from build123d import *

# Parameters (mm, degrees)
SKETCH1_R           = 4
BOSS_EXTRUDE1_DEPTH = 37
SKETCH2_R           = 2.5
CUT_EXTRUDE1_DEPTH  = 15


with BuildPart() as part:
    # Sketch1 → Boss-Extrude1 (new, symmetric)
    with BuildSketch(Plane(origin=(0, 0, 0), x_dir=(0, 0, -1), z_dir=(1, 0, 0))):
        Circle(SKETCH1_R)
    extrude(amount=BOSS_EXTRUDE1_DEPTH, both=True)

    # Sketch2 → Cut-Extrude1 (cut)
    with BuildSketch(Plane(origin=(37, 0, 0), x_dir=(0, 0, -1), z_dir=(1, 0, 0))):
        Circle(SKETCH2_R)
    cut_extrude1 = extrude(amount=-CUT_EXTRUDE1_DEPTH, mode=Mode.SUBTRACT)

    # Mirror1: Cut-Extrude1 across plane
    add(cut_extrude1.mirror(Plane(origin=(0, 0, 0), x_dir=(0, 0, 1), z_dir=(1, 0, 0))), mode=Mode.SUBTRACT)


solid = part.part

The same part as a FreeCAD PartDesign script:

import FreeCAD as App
import Part
import Sketcher
from FreeCAD import Vector

doc = App.newDocument("Part")
params = doc.addObject("Spreadsheet::Sheet", "Params")
for row, (alias, value) in enumerate([
    ("sketch1_diameter", "8 mm"),
    ("pad1_length", "74 mm"),
    ("sketch2_diameter", "5 mm"),
    ("pocket1_length", "15 mm"),
], start=1):
    params.set(f"A{row}", alias)
    params.set(f"B{row}", "=" + value)
    params.setAlias(f"B{row}", alias)

body = doc.addObject("PartDesign::Body", "Body")

# Sketch on YZ plane
sketch1 = body.newObject("Sketcher::SketchObject", "Sketch")
sketch1.AttachmentSupport = (doc.getObject("YZ_Plane"), [""])
sketch1.MapMode = "FlatFace"
sketch1.addGeometry(Part.Circle(Vector(0, 0, 0), Vector(0, 0, 1), 4), False)
sketch1.addConstraint([
    Sketcher.Constraint("Coincident", 0, 3, -1, 1),
    Sketcher.Constraint("Diameter", 0, 8.0),
])
sketch1.setExpression("Constraints[1]", "Params.sketch1_diameter")
pad1 = body.newObject("PartDesign::Pad", "Pad")
pad1.Profile = sketch1
pad1.setExpression("Length", "Params.pad1_length")
pad1.Midplane = True

# Sketch on YZ plane
sketch2 = body.newObject("Sketcher::SketchObject", "Sketch001")
sketch2.AttachmentSupport = (doc.getObject("YZ_Plane"), [""])
sketch2.MapMode = "FlatFace"
sketch2.AttachmentOffset = App.Placement(Vector(0, 0, 37), App.Rotation())
sketch2.addGeometry(Part.Circle(Vector(0, 0, 0), Vector(0, 0, 1), 2.5), False)
sketch2.addConstraint([
    Sketcher.Constraint("Coincident", 0, 3, -1, 1),
    Sketcher.Constraint("Diameter", 0, 5.0),
])
sketch2.setExpression("Constraints[1]", "Params.sketch2_diameter")
pocket1 = body.newObject("PartDesign::Pocket", "Pocket")
pocket1.Profile = sketch2
pocket1.setExpression("Length", "Params.pocket1_length")
doc.recompute()

mirrored = body.newObject("PartDesign::Mirrored", "Mirrored")
mirrored.Originals = [pocket1]
mirrored.MirrorPlane = (doc.getObject("YZ_Plane"), [""])
body.Tip = mirrored

doc.recompute()
